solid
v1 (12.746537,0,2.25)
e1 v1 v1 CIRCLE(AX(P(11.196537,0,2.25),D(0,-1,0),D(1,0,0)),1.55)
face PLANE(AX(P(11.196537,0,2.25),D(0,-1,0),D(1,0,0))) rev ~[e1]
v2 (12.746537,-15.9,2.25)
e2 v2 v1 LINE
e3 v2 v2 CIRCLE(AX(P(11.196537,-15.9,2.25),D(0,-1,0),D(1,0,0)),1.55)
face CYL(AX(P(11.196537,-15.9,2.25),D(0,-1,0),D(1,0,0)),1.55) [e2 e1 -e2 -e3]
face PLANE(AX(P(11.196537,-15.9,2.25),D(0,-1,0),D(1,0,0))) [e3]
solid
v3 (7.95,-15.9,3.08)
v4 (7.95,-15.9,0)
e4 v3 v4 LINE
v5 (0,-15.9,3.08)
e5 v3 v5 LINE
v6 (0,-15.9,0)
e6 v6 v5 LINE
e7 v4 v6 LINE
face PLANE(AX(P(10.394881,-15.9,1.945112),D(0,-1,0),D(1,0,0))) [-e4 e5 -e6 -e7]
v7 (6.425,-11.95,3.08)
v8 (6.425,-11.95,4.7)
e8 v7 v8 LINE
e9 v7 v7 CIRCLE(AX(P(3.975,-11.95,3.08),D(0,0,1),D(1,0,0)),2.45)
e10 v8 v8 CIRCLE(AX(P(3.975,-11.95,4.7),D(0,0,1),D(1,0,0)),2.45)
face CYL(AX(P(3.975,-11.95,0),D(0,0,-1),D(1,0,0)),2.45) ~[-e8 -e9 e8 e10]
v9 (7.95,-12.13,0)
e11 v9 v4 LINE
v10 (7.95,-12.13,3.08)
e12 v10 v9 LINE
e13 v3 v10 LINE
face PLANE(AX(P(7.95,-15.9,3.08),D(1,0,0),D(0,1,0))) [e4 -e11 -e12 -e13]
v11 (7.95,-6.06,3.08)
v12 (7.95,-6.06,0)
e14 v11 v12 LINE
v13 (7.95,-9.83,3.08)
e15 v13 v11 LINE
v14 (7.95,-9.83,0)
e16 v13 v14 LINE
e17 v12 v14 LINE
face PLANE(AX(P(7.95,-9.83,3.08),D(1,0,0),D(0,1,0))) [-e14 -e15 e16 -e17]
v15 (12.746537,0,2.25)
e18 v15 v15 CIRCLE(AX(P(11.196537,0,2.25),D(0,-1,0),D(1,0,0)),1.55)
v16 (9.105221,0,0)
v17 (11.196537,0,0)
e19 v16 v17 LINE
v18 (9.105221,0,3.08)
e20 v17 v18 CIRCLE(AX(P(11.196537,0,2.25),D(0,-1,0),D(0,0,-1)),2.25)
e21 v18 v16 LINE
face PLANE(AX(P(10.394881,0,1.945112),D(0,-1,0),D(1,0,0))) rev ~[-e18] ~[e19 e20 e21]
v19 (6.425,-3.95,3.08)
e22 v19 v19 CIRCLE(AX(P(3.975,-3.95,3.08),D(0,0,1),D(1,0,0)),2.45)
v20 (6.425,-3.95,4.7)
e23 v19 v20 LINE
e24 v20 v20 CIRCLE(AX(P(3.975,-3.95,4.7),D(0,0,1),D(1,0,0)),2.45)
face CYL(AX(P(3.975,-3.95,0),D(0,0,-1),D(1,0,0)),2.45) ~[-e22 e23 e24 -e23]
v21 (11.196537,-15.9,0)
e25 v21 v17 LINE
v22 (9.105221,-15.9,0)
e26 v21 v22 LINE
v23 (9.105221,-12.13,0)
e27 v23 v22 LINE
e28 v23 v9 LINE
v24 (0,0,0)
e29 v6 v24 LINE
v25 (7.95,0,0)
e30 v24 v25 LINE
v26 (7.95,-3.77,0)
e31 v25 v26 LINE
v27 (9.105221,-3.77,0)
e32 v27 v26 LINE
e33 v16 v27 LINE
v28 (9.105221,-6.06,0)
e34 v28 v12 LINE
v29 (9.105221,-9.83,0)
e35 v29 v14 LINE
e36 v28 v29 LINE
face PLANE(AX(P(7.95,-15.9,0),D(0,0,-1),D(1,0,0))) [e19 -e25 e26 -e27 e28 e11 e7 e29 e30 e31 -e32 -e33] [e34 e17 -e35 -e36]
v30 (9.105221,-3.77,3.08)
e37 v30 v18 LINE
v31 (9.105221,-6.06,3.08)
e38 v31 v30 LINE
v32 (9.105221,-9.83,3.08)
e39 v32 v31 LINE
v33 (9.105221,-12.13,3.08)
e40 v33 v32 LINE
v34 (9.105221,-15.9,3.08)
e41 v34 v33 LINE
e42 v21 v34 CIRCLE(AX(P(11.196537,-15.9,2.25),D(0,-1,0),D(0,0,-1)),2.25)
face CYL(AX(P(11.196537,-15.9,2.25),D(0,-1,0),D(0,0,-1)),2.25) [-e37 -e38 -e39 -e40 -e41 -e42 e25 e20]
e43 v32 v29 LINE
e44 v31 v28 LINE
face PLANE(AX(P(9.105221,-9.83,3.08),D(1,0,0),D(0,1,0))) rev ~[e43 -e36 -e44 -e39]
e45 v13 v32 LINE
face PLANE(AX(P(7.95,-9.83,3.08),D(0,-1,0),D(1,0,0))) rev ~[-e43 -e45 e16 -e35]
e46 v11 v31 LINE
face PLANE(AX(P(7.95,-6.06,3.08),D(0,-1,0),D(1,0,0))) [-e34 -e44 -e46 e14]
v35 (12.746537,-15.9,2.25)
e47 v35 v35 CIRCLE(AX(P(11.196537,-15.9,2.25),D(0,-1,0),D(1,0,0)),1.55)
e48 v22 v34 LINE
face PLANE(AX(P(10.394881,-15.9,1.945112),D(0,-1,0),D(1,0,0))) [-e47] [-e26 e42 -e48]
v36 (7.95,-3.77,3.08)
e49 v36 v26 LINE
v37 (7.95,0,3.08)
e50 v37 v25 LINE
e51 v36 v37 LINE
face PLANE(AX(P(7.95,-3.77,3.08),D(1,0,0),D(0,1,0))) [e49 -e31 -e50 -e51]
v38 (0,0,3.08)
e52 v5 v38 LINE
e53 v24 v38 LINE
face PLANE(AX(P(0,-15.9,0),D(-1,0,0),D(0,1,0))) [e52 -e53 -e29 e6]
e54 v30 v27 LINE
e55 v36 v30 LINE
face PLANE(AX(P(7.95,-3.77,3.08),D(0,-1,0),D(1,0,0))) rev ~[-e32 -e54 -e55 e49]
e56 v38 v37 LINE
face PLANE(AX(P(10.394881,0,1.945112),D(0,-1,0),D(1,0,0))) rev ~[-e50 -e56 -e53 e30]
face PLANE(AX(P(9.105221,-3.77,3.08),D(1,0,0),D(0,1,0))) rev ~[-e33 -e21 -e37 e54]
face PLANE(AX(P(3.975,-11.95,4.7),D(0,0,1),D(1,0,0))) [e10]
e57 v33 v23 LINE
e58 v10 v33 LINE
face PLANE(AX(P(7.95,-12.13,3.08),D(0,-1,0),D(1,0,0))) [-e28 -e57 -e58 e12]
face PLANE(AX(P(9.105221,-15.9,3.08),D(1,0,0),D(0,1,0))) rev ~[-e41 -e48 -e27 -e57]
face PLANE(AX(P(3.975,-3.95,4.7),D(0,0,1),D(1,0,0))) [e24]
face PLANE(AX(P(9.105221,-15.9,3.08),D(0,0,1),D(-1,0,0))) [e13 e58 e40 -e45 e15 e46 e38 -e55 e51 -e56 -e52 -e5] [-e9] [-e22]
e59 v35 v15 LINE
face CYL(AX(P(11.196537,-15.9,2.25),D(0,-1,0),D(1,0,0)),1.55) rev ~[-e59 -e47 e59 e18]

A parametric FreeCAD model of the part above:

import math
import FreeCAD as App
import Part
import Sketcher

doc = App.newDocument("Part")
body = doc.addObject("PartDesign::Body", "Body")

# Sketch on XY plane
sketch1 = body.newObject("Sketcher::SketchObject", "Sketch")
sketch1.AttachmentSupport = (doc.getObject("XY_Plane"), [""])
sketch1.MapMode = "FlatFace"
sketch1.addGeometry(Part.LineSegment(App.Vector(0, 0, 0), App.Vector(0, -15.9, 0)), False)
sketch1.addGeometry(Part.LineSegment(App.Vector(0, -15.9, 0), App.Vector(8, -15.9, 0)), False)
sketch1.addGeometry(Part.LineSegment(App.Vector(8, -15.9, 0), App.Vector(8, 0, 0)), False)
sketch1.addGeometry(Part.LineSegment(App.Vector(8, 0, 0), App.Vector(0, 0, 0)), False)
sketch1.addGeometry(Part.Circle(App.Vector(4, -11.9, 0), App.Vector(0, 0, 1), 2.5), False)
sketch1.addGeometry(Part.Circle(App.Vector(4, -4, 0), App.Vector(0, 0, 1), 2.5), False)
sketch1.addConstraint(Sketcher.Constraint("Coincident", 0, 2, 1, 1))
sketch1.addConstraint(Sketcher.Constraint("Coincident", 1, 2, 2, 1))
sketch1.addConstraint(Sketcher.Constraint("Coincident", 2, 2, 3, 1))
sketch1.addConstraint(Sketcher.Constraint("Coincident", 3, 2, 0, 1))
sketch1.addConstraint(Sketcher.Constraint("Vertical", 0))
sketch1.addConstraint(Sketcher.Constraint("Horizontal", 1))
sketch1.addConstraint(Sketcher.Constraint("Vertical", 2))
sketch1.addConstraint(Sketcher.Constraint("Horizontal", 3))
sketch1.addConstraint(Sketcher.Constraint("Coincident", 3, 2, -1, 1))
sketch1.addConstraint(Sketcher.Constraint("Equal", 4, 5))
sketch1.addConstraint(Sketcher.Constraint("Vertical", 4, 3, 5, 3))
sketch1.addConstraint(Sketcher.Constraint("Diameter", 4, 4.9))
sketch1.addConstraint(Sketcher.Constraint("DistanceY", 0, 2, 0, 1, 15.9))
sketch1.addConstraint(Sketcher.Constraint("DistanceY", 4, 3, 5, 3, 8.0))
sketch1.addConstraint(Sketcher.Constraint("DistanceX", 1, 1, 1, 2, 7.95))
sketch1.addConstraint(Sketcher.Constraint("DistanceY", 4, 3, -1, 1, 11.95))
sketch1.addConstraint(Sketcher.Constraint("DistanceX", -1, 1, 4, 3, 3.975))
pad1 = body.newObject("PartDesign::Pad", "Pad")
pad1.Profile = sketch1
pad1.Length = 3.08

# Sketch on XY plane
sketch2 = body.newObject("Sketcher::SketchObject", "Sketch001")
sketch2.AttachmentSupport = (doc.getObject("XY_Plane"), [""])
sketch2.MapMode = "FlatFace"
sketch2.addGeometry(Part.Circle(App.Vector(4, -11.9, 0), App.Vector(0, 0, 1), 2.5), False)
sketch2.addGeometry(Part.Circle(App.Vector(4, -4, 0), App.Vector(0, 0, 1), 2.5), False)
sketch2.addConstraint(Sketcher.Constraint("Equal", 0, 1))
sketch2.addConstraint(Sketcher.Constraint("Vertical", 0, 3, 1, 3))
sketch2.addConstraint(Sketcher.Constraint("Diameter", 0, 4.9))
sketch2.addConstraint(Sketcher.Constraint("DistanceY", 0, 3, 1, 3, 8.0))
sketch2.addConstraint(Sketcher.Constraint("DistanceY", 0, 3, -1, 1, 11.95))
sketch2.addConstraint(Sketcher.Constraint("DistanceX", -1, 1, 0, 3, 3.975))
pad2 = body.newObject("PartDesign::Pad", "Pad001")
pad2.Profile = sketch2
pad2.Length = 4.7

# Sketch on XZ plane
sketch3 = body.newObject("Sketcher::SketchObject", "Sketch002")
sketch3.AttachmentSupport = (doc.getObject("XZ_Plane"), [""])
sketch3.MapMode = "FlatFace"
sketch3.AttachmentOffset = App.Placement(App.Vector(0, 0, 15.9), App.Rotation())
sketch3.addGeometry(Part.LineSegment(App.Vector(8, 0, 0), App.Vector(11.2, 0, 0)), False)
sketch3.addGeometry(Part.ArcOfCircle(Part.Circle(App.Vector(11.2, 2.2, 0), App.Vector(0, 0, 1), 2.2), math.radians(-90), math.radians(158)), False)
sketch3.addGeometry(Part.LineSegment(App.Vector(9.1, 3.1, 0), App.Vector(8, 3.1, 0)), False)
sketch3.addGeometry(Part.LineSegment(App.Vector(8, 3.1, 0), App.Vector(8, 0, 0)), False)
sketch3.addGeometry(Part.Circle(App.Vector(11.2, 2.2, 0), App.Vector(0, 0, 1), 1.6), False)
sketch3.addConstraint(Sketcher.Constraint("Tangent", 0, 2, 1, 1))
sketch3.addConstraint(Sketcher.Constraint("Coincident", 1, 2, 2, 1))
sketch3.addConstraint(Sketcher.Constraint("Coincident", 2, 2, 3, 1))
sketch3.addConstraint(Sketcher.Constraint("Coincident", 3, 2, 0, 1))
sketch3.addConstraint(Sketcher.Constraint("Horizontal", 0))
sketch3.addConstraint(Sketcher.Constraint("Horizontal", 2))
sketch3.addConstraint(Sketcher.Constraint("Vertical", 3))
sketch3.addConstraint(Sketcher.Constraint("Coincident", 4, 3, 1, 3))
sketch3.addConstraint(Sketcher.Constraint("PointOnObject", 0, 2, -1))
sketch3.addConstraint(Sketcher.Constraint("Diameter", 4, 3.1))
sketch3.addConstraint(Sketcher.Constraint("Radius", 1, 2.25))
sketch3.addConstraint(Sketcher.Constraint("DistanceY", 3, 2, 3, 1, 3.08))
sketch3.addConstraint(Sketcher.Constraint("DistanceX", -1, 1, 2, 2, 7.95))
sketch3.addConstraint(Sketcher.Constraint("DistanceX", 2, 2, 2, 1, 1.155221))
pad3 = body.newObject("PartDesign::Pad", "Pad002")
pad3.Profile = sketch3
pad3.Length = 15.9
pad3.Reversed = True

# Sketch on XY plane
sketch4 = body.newObject("Sketcher::SketchObject", "Sketch003")
sketch4.AttachmentSupport = (doc.getObject("XY_Plane"), [""])
sketch4.MapMode = "FlatFace"
sketch4.AttachmentOffset = App.Placement(App.Vector(0, 0, 3.08), App.Rotation())
sketch4.addGeometry(Part.LineSegment(App.Vector(8, 0, 0), App.Vector(8, -3.8, 0)), False)
sketch4.addGeometry(Part.LineSegment(App.Vector(8, -3.8, 0), App.Vector(9.1, -3.8, 0)), False)
sketch4.addGeometry(Part.LineSegment(App.Vector(9.1, -3.8, 0), App.Vector(9.1, 0, 0)), False)
sketch4.addGeometry(Part.LineSegment(App.Vector(9.1, 0, 0), App.Vector(8, 0, 0)), False)
sketch4.addGeometry(Part.LineSegment(App.Vector(8, -12.1, 0), App.Vector(8, -15.9, 0)), False)
sketch4.addGeometry(Part.LineSegment(App.Vector(8, -15.9, 0), App.Vector(9.1, -15.9, 0)), False)
sketch4.addGeometry(Part.LineSegment(App.Vector(9.1, -15.9, 0), App.Vector(9.1, -12.1, 0)), False)
sketch4.addGeometry(Part.LineSegment(App.Vector(9.1, -12.1, 0), App.Vector(8, -12.1, 0)), False)
sketch4.addGeometry(Part.LineSegment(App.Vector(8, -6.1, 0), App.Vector(8, -9.8, 0)), False)
sketch4.addGeometry(Part.LineSegment(App.Vector(8, -9.8, 0), App.Vector(9.1, -9.8, 0)), False)
sketch4.addGeometry(Part.LineSegment(App.Vector(9.1, -9.8, 0), App.Vector(9.1, -6.1, 0)), False)
sketch4.addGeometry(Part.LineSegment(App.Vector(9.1, -6.1, 0), App.Vector(8, -6.1, 0)), False)
sketch4.addConstraint(Sketcher.Constraint("Coincident", 0, 2, 1, 1))
sketch4.addConstraint(Sketcher.Constraint("Coincident", 1, 2, 2, 1))
sketch4.addConstraint(Sketcher.Constraint("Coincident", 2, 2, 3, 1))
sketch4.addConstraint(Sketcher.Constraint("Coincident", 3, 2, 0, 1))
sketch4.addConstraint(Sketcher.Constraint("Coincident", 4, 2, 5, 1))
sketch4.addConstraint(Sketcher.Constraint("Coincident", 5, 2, 6, 1))
sketch4.addConstraint(Sketcher.Constraint("Coincident", 6, 2, 7, 1))
sketch4.addConstraint(Sketcher.Constraint("Coincident", 7, 2, 4, 1))
sketch4.addConstraint(Sketcher.Constraint("Coincident", 8, 2, 9, 1))
sketch4.addConstraint(Sketcher.Constraint("Coincident", 9, 2, 10, 1))
sketch4.addConstraint(Sketcher.Constraint("Coincident", 10, 2, 11, 1))
sketch4.addConstraint(Sketcher.Constraint("Coincident", 11, 2, 8, 1))
sketch4.addConstraint(Sketcher.Constraint("Vertical", 0))
sketch4.addConstraint(Sketcher.Constraint("Horizontal", 1))
sketch4.addConstraint(Sketcher.Constraint("Vertical", 2))
sketch4.addConstraint(Sketcher.Constraint("Horizontal", 3))
sketch4.addConstraint(Sketcher.Constraint("Vertical", 4))
sketch4.addConstraint(Sketcher.Constraint("Horizontal", 5))
sketch4.addConstraint(Sketcher.Constraint("Vertical", 6))
sketch4.addConstraint(Sketcher.Constraint("Horizontal", 7))
sketch4.addConstraint(Sketcher.Constraint("Vertical", 8))
sketch4.addConstraint(Sketcher.Constraint("Horizontal", 9))
sketch4.addConstraint(Sketcher.Constraint("Vertical", 10))
sketch4.addConstraint(Sketcher.Constraint("Horizontal", 11))
sketch4.addConstraint(Sketcher.Constraint("PointOnObject", 2, 2, -1))
sketch4.addConstraint(Sketcher.Constraint("Vertical", 3, 2, 4, 2))
sketch4.addConstraint(Sketcher.Constraint("Vertical", 2, 2, 5, 2))
sketch4.addConstraint(Sketcher.Constraint("Vertical", 7, 2, 8, 2))
sketch4.addConstraint(Sketcher.Constraint("Vertical", 6, 2, 9, 2))
sketch4.addConstraint(Sketcher.Constraint("Equal", 2, 4))
sketch4.addConstraint(Sketcher.Constraint("Equal", 6, 8))
sketch4.addConstraint(Sketcher.Constraint("DistanceY", 0, 2, 0, 1, 3.77))
sketch4.addConstraint(Sketcher.Constraint("DistanceY", 4, 2, -1, 1, 15.9))
sketch4.addConstraint(Sketcher.Constraint("DistanceY", 7, 2, 8, 2, 2.3))
sketch4.addConstraint(Sketcher.Constraint("DistanceX", -1, 1, 0, 2, 7.95))
sketch4.addConstraint(Sketcher.Constraint("DistanceX", 1, 1, 1, 2, 1.155221))
pocket1 = body.newObject("PartDesign::Pocket", "Pocket")
pocket1.Profile = sketch4
pocket1.Length = 25

# Sketch on XZ plane
sketch5 = body.newObject("Sketcher::SketchObject", "Sketch004")
sketch5.AttachmentSupport = (doc.getObject("XZ_Plane"), [""])
sketch5.MapMode = "FlatFace"
sketch5.AttachmentOffset = App.Placement(App.Vector(0, 0, 15.9), App.Rotation())
sketch5.addGeometry(Part.LineSegment(App.Vector(9.1, 0, 0), App.Vector(10.5, 0, 0)), False)
sketch5.addGeometry(Part.ArcOfCircle(Part.Circle(App.Vector(11.2, 2.2, 0), App.Vector(0, 0, 1), 2.3), math.radians(-106), math.radians(208)), False)
sketch5.addGeometry(Part.LineSegment(App.Vector(9.1, 1.2, 0), App.Vector(9.1, 0, 0)), False)
sketch5.addGeometry(Part.Circle(App.Vector(11.2, 2.2, 0), App.Vector(0, 0, 1), 1.5), False)
sketch5.addConstraint(Sketcher.Constraint("Coincident", 0, 2, 1, 1))
sketch5.addConstraint(Sketcher.Constraint("Coincident", 1, 2, 2, 1))
sketch5.addConstraint(Sketcher.Constraint("Coincident", 2, 2, 0, 1))
sketch5.addConstraint(Sketcher.Constraint("Horizontal", 0))
sketch5.addConstraint(Sketcher.Constraint("Coincident", 3, 3, 1, 3))
sketch5.addConstraint(Sketcher.Constraint("PointOnObject", 0, 2, -1))
sketch5.addConstraint(Sketcher.Constraint("Diameter", 3, 3.041092))
sketch5.addConstraint(Sketcher.Constraint("DistanceY", -1, 1, 1, 3, 2.25))
sketch5.addConstraint(Sketcher.Constraint("Radius", 1, 2.34456))
sketch5.addConstraint(Sketcher.Constraint("DistanceX", -1, 1, 0, 2, 10.537398))
sketch5.addConstraint(Sketcher.Constraint("DistanceX", 0, 1, 0, 2, 1.432177))
sketch5.addConstraint(Sketcher.Constraint("DistanceY", -1, 1, 1, 2, 1.153179))
pocket2 = body.newObject("PartDesign::Pocket", "Pocket001")
pocket2.Profile = sketch5
pocket2.Length = 3.77
pocket2.Reversed = True
body2 = doc.addObject("PartDesign::Body", "Body001")

# Sketch on XZ plane
sketch6 = body2.newObject("Sketcher::SketchObject", "Sketch005")
sketch6.AttachmentSupport = (doc.getObject("XZ_Plane001"), [""])
sketch6.MapMode = "FlatFace"
sketch6.AttachmentOffset = App.Placement(App.Vector(0, 0, 15.9), App.Rotation())
sketch6.addGeometry(Part.Circle(App.Vector(11.2, 2.2, 0), App.Vector(0, 0, 1), 1.6), False)
sketch6.addConstraint(Sketcher.Constraint("Diameter", 0, 3.1))
sketch6.addConstraint(Sketcher.Constraint("DistanceY", -1, 1, 0, 3, 2.25))
sketch6.addConstraint(Sketcher.Constraint("DistanceX", -1, 1, 0, 3, 11.196537))
pad4 = body2.newObject("PartDesign::Pad", "Pad003")
pad4.Profile = sketch6
pad4.Length = 15.9
pad4.Reversed = True

doc.recompute()
